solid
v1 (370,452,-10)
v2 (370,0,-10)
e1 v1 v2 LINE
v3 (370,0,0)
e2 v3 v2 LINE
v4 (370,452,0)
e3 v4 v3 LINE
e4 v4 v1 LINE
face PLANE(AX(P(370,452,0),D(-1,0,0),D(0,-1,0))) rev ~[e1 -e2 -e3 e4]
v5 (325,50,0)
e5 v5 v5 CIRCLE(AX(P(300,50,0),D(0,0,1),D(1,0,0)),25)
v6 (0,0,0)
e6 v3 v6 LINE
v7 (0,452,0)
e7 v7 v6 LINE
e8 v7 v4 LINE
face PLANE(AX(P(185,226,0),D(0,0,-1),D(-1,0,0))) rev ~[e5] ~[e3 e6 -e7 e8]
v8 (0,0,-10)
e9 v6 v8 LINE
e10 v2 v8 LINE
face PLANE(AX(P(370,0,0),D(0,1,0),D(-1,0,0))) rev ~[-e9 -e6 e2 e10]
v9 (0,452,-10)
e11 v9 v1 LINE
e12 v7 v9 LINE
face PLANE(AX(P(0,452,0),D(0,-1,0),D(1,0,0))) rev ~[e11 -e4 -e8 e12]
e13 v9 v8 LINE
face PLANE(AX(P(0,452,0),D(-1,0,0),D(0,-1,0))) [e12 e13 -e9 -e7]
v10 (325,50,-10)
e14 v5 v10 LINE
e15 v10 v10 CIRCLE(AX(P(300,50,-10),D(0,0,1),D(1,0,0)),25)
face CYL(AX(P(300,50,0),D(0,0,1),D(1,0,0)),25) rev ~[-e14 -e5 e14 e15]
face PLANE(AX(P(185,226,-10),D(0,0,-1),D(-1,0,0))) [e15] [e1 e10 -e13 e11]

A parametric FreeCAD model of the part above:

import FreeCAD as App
import Part
import Sketcher

V = App.Vector

doc = App.newDocument("Part")
body = doc.addObject("PartDesign::Body", "Body")

# Sketch on XY plane
sketch1 = doc.addObject("Sketcher::SketchObject", "Sketch")
body.addObject(sketch1)
sketch1.AttachmentSupport = (doc.XY_Plane, [""])
sketch1.MapMode = "FlatFace"
sketch1.addGeometry(Part.LineSegment(V(0, 452, 0), V(0, 0, 0)), False)
sketch1.addGeometry(Part.LineSegment(V(0, 0, 0), V(370, 0, 0)), False)
sketch1.addGeometry(Part.LineSegment(V(370, 0, 0), V(370, 452, 0)), False)
sketch1.addGeometry(Part.LineSegment(V(370, 452, 0), V(0, 452, 0)), False)
sketch1.addConstraint(Sketcher.Constraint("Coincident", 0, 2, 1, 1))
sketch1.addConstraint(Sketcher.Constraint("Coincident", 1, 2, 2, 1))
sketch1.addConstraint(Sketcher.Constraint("Coincident", 2, 2, 3, 1))
sketch1.addConstraint(Sketcher.Constraint("Coincident", 3, 2, 0, 1))
sketch1.addConstraint(Sketcher.Constraint("Vertical", 0))
sketch1.addConstraint(Sketcher.Constraint("Horizontal", 1))
sketch1.addConstraint(Sketcher.Constraint("Vertical", 2))
sketch1.addConstraint(Sketcher.Constraint("Horizontal", 3))
sketch1.addConstraint(Sketcher.Constraint("Coincident", 0, 2, -1, 1))
sketch1.addConstraint(Sketcher.Constraint("DistanceX", 1, 1, 1, 2, 370.0))
sketch1.addConstraint(Sketcher.Constraint("DistanceY", 0, 2, 0, 1, 452.0))
pad1 = doc.addObject("PartDesign::Pad", "Pad")
body.addObject(pad1)
pad1.Profile = sketch1
pad1.Length = 10
pad1.Reversed = True

# Sketch on XY plane
sketch2 = doc.addObject("Sketcher::SketchObject", "Sketch001")
body.addObject(sketch2)
sketch2.AttachmentSupport = (doc.XY_Plane, [""])
sketch2.MapMode = "FlatFace"
sketch2.addGeometry(Part.Circle(V(300, 50, 0), V(0, 0, 1), 25), False)
sketch2.addConstraint(Sketcher.Constraint("Diameter", 0, 50.0))
sketch2.addConstraint(Sketcher.Constraint("DistanceX", -1, 1, 0, 3, 300.0))
sketch2.addConstraint(Sketcher.Constraint("DistanceY", -1, 1, 0, 3, 50.0))
pocket1 = doc.addObject("PartDesign::Pocket", "Pocket")
body.addObject(pocket1)
pocket1.Profile = sketch2
pocket1.Type = "ThroughAll"

doc.recompute()
